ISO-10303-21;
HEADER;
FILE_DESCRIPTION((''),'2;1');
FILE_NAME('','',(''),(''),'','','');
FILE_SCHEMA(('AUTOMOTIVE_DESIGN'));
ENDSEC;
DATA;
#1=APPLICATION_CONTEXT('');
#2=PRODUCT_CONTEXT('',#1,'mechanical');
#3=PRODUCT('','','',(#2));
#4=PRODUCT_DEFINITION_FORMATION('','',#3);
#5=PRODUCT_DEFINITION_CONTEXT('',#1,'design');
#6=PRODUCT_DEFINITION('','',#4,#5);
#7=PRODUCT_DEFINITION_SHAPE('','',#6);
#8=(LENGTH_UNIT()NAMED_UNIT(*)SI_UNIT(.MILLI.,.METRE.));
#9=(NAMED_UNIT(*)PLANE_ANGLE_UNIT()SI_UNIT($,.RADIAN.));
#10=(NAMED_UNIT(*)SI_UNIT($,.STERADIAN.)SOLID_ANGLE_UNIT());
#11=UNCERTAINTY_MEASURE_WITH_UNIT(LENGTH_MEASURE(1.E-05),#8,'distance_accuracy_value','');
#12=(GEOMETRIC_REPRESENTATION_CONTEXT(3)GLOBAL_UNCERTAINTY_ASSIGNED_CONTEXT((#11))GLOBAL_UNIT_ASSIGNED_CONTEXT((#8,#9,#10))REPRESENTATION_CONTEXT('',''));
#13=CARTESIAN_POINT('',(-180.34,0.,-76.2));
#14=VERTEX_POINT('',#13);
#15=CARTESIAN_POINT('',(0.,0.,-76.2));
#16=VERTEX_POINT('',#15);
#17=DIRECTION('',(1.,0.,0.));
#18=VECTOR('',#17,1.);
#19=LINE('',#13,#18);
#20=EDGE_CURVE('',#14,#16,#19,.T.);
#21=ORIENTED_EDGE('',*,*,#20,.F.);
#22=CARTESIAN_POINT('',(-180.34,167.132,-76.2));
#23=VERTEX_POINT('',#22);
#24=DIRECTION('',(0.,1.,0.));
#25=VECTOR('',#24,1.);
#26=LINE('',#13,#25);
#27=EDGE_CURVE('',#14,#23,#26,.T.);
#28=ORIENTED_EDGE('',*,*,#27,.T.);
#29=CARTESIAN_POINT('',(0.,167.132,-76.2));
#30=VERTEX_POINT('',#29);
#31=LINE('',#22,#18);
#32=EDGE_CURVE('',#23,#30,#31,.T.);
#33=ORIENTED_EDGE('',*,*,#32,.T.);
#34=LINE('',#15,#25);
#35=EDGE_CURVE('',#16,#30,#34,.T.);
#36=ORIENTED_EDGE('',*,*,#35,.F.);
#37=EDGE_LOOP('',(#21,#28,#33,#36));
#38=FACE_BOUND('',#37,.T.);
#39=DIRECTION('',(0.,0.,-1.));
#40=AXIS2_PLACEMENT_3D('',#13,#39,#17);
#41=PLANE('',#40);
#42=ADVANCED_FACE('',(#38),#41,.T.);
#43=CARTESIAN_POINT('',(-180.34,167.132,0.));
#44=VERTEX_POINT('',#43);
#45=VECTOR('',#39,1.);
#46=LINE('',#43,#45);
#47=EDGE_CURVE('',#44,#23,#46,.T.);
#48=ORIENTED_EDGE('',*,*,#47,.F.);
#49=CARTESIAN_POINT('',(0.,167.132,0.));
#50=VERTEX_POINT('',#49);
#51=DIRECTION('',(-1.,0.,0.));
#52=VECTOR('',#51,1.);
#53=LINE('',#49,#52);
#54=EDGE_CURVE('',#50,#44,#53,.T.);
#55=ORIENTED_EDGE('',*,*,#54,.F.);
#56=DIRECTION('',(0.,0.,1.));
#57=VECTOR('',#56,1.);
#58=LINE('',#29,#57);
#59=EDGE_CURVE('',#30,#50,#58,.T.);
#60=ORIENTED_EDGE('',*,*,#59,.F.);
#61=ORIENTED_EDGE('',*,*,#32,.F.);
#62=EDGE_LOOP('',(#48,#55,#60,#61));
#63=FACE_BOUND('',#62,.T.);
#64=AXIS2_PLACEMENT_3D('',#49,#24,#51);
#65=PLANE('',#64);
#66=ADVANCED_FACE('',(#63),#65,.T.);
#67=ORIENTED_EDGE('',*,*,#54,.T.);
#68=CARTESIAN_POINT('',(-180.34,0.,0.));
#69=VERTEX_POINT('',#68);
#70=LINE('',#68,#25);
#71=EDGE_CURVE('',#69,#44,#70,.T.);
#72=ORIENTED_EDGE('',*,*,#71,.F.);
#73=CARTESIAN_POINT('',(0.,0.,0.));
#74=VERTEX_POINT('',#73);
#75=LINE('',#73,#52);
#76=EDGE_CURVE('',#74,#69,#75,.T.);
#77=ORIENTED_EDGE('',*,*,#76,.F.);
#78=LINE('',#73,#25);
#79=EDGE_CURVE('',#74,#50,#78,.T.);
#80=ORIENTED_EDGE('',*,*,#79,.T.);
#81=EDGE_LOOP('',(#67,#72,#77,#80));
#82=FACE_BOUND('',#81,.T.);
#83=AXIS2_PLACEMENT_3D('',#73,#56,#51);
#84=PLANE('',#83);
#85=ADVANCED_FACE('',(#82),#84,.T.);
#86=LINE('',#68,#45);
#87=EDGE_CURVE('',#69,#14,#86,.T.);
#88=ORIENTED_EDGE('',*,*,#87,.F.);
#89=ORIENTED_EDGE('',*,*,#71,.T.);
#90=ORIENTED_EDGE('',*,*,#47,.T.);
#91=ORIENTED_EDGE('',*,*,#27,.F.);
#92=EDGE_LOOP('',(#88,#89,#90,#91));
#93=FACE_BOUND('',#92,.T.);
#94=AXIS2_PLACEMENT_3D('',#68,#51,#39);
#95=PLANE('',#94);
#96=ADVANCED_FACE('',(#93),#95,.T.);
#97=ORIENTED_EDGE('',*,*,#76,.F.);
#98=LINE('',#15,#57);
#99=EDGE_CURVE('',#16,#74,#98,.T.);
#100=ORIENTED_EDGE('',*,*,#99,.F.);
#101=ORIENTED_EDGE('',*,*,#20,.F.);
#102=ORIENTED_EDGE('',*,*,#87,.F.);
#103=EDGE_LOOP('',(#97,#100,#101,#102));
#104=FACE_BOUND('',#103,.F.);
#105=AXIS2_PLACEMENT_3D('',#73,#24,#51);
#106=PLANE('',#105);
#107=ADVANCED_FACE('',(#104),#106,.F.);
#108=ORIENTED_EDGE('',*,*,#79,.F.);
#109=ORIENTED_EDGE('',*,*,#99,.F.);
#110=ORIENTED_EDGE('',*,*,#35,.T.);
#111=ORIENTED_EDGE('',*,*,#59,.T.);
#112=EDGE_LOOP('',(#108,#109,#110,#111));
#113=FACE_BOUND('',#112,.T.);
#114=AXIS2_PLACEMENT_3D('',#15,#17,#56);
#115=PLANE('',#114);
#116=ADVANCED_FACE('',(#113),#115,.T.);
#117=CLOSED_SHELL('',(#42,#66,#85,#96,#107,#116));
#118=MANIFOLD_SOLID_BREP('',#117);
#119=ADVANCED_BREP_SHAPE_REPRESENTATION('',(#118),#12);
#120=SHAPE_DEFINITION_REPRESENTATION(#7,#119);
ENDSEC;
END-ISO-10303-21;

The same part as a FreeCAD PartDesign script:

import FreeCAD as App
import Part
import Sketcher

V = App.Vector
Q = App.Units.Quantity


def add_polygon(sketch, points):
    """Adds a closed chain of lines whose ends are joined by coincident constraints."""
    first, n = sketch.GeometryCount, len(points)
    for a, b in zip(points, points[1:] + points[:1]):
        sketch.addGeometry(Part.LineSegment(App.Vector(*a, 0), App.Vector(*b, 0)), False)
    for i in range(n):
        sketch.addConstraint(Sketcher.Constraint("Coincident", first + i, 2, first + (i + 1) % n, 1))

doc = App.newDocument("Part")
body = doc.addObject("PartDesign::Body", "Body")

sketch1 = doc.addObject("Sketcher::SketchObject", "Sketch")
body.addObject(sketch1)
sketch1.AttachmentSupport = (doc.XZ_Plane, [""])
sketch1.MapMode = "FlatFace"
add_polygon(sketch1, [(-180, 0), (0, 0), (0, -76), (-180, -76)])
sketch1.addConstraint(Sketcher.Constraint("Horizontal", 0))
sketch1.addConstraint(Sketcher.Constraint("Vertical", 1))
sketch1.addConstraint(Sketcher.Constraint("Horizontal", 2))
sketch1.addConstraint(Sketcher.Constraint("Vertical", 3))
sketch1.addConstraint(Sketcher.Constraint("Coincident", 0, 2, -1, 1))
sketch1.addConstraint(Sketcher.Constraint("DistanceY", 1, 2, 1, 1, Q("3 in")))
sketch1.addConstraint(Sketcher.Constraint("DistanceX", 0, 1, 0, 2, Q("7.1 in")))
pad1 = doc.addObject("PartDesign::Pad", "Pad")
body.addObject(pad1)
pad1.Profile = sketch1
pad1.Length = Q("6.58 in")
pad1.Reversed = True

doc.recompute()
